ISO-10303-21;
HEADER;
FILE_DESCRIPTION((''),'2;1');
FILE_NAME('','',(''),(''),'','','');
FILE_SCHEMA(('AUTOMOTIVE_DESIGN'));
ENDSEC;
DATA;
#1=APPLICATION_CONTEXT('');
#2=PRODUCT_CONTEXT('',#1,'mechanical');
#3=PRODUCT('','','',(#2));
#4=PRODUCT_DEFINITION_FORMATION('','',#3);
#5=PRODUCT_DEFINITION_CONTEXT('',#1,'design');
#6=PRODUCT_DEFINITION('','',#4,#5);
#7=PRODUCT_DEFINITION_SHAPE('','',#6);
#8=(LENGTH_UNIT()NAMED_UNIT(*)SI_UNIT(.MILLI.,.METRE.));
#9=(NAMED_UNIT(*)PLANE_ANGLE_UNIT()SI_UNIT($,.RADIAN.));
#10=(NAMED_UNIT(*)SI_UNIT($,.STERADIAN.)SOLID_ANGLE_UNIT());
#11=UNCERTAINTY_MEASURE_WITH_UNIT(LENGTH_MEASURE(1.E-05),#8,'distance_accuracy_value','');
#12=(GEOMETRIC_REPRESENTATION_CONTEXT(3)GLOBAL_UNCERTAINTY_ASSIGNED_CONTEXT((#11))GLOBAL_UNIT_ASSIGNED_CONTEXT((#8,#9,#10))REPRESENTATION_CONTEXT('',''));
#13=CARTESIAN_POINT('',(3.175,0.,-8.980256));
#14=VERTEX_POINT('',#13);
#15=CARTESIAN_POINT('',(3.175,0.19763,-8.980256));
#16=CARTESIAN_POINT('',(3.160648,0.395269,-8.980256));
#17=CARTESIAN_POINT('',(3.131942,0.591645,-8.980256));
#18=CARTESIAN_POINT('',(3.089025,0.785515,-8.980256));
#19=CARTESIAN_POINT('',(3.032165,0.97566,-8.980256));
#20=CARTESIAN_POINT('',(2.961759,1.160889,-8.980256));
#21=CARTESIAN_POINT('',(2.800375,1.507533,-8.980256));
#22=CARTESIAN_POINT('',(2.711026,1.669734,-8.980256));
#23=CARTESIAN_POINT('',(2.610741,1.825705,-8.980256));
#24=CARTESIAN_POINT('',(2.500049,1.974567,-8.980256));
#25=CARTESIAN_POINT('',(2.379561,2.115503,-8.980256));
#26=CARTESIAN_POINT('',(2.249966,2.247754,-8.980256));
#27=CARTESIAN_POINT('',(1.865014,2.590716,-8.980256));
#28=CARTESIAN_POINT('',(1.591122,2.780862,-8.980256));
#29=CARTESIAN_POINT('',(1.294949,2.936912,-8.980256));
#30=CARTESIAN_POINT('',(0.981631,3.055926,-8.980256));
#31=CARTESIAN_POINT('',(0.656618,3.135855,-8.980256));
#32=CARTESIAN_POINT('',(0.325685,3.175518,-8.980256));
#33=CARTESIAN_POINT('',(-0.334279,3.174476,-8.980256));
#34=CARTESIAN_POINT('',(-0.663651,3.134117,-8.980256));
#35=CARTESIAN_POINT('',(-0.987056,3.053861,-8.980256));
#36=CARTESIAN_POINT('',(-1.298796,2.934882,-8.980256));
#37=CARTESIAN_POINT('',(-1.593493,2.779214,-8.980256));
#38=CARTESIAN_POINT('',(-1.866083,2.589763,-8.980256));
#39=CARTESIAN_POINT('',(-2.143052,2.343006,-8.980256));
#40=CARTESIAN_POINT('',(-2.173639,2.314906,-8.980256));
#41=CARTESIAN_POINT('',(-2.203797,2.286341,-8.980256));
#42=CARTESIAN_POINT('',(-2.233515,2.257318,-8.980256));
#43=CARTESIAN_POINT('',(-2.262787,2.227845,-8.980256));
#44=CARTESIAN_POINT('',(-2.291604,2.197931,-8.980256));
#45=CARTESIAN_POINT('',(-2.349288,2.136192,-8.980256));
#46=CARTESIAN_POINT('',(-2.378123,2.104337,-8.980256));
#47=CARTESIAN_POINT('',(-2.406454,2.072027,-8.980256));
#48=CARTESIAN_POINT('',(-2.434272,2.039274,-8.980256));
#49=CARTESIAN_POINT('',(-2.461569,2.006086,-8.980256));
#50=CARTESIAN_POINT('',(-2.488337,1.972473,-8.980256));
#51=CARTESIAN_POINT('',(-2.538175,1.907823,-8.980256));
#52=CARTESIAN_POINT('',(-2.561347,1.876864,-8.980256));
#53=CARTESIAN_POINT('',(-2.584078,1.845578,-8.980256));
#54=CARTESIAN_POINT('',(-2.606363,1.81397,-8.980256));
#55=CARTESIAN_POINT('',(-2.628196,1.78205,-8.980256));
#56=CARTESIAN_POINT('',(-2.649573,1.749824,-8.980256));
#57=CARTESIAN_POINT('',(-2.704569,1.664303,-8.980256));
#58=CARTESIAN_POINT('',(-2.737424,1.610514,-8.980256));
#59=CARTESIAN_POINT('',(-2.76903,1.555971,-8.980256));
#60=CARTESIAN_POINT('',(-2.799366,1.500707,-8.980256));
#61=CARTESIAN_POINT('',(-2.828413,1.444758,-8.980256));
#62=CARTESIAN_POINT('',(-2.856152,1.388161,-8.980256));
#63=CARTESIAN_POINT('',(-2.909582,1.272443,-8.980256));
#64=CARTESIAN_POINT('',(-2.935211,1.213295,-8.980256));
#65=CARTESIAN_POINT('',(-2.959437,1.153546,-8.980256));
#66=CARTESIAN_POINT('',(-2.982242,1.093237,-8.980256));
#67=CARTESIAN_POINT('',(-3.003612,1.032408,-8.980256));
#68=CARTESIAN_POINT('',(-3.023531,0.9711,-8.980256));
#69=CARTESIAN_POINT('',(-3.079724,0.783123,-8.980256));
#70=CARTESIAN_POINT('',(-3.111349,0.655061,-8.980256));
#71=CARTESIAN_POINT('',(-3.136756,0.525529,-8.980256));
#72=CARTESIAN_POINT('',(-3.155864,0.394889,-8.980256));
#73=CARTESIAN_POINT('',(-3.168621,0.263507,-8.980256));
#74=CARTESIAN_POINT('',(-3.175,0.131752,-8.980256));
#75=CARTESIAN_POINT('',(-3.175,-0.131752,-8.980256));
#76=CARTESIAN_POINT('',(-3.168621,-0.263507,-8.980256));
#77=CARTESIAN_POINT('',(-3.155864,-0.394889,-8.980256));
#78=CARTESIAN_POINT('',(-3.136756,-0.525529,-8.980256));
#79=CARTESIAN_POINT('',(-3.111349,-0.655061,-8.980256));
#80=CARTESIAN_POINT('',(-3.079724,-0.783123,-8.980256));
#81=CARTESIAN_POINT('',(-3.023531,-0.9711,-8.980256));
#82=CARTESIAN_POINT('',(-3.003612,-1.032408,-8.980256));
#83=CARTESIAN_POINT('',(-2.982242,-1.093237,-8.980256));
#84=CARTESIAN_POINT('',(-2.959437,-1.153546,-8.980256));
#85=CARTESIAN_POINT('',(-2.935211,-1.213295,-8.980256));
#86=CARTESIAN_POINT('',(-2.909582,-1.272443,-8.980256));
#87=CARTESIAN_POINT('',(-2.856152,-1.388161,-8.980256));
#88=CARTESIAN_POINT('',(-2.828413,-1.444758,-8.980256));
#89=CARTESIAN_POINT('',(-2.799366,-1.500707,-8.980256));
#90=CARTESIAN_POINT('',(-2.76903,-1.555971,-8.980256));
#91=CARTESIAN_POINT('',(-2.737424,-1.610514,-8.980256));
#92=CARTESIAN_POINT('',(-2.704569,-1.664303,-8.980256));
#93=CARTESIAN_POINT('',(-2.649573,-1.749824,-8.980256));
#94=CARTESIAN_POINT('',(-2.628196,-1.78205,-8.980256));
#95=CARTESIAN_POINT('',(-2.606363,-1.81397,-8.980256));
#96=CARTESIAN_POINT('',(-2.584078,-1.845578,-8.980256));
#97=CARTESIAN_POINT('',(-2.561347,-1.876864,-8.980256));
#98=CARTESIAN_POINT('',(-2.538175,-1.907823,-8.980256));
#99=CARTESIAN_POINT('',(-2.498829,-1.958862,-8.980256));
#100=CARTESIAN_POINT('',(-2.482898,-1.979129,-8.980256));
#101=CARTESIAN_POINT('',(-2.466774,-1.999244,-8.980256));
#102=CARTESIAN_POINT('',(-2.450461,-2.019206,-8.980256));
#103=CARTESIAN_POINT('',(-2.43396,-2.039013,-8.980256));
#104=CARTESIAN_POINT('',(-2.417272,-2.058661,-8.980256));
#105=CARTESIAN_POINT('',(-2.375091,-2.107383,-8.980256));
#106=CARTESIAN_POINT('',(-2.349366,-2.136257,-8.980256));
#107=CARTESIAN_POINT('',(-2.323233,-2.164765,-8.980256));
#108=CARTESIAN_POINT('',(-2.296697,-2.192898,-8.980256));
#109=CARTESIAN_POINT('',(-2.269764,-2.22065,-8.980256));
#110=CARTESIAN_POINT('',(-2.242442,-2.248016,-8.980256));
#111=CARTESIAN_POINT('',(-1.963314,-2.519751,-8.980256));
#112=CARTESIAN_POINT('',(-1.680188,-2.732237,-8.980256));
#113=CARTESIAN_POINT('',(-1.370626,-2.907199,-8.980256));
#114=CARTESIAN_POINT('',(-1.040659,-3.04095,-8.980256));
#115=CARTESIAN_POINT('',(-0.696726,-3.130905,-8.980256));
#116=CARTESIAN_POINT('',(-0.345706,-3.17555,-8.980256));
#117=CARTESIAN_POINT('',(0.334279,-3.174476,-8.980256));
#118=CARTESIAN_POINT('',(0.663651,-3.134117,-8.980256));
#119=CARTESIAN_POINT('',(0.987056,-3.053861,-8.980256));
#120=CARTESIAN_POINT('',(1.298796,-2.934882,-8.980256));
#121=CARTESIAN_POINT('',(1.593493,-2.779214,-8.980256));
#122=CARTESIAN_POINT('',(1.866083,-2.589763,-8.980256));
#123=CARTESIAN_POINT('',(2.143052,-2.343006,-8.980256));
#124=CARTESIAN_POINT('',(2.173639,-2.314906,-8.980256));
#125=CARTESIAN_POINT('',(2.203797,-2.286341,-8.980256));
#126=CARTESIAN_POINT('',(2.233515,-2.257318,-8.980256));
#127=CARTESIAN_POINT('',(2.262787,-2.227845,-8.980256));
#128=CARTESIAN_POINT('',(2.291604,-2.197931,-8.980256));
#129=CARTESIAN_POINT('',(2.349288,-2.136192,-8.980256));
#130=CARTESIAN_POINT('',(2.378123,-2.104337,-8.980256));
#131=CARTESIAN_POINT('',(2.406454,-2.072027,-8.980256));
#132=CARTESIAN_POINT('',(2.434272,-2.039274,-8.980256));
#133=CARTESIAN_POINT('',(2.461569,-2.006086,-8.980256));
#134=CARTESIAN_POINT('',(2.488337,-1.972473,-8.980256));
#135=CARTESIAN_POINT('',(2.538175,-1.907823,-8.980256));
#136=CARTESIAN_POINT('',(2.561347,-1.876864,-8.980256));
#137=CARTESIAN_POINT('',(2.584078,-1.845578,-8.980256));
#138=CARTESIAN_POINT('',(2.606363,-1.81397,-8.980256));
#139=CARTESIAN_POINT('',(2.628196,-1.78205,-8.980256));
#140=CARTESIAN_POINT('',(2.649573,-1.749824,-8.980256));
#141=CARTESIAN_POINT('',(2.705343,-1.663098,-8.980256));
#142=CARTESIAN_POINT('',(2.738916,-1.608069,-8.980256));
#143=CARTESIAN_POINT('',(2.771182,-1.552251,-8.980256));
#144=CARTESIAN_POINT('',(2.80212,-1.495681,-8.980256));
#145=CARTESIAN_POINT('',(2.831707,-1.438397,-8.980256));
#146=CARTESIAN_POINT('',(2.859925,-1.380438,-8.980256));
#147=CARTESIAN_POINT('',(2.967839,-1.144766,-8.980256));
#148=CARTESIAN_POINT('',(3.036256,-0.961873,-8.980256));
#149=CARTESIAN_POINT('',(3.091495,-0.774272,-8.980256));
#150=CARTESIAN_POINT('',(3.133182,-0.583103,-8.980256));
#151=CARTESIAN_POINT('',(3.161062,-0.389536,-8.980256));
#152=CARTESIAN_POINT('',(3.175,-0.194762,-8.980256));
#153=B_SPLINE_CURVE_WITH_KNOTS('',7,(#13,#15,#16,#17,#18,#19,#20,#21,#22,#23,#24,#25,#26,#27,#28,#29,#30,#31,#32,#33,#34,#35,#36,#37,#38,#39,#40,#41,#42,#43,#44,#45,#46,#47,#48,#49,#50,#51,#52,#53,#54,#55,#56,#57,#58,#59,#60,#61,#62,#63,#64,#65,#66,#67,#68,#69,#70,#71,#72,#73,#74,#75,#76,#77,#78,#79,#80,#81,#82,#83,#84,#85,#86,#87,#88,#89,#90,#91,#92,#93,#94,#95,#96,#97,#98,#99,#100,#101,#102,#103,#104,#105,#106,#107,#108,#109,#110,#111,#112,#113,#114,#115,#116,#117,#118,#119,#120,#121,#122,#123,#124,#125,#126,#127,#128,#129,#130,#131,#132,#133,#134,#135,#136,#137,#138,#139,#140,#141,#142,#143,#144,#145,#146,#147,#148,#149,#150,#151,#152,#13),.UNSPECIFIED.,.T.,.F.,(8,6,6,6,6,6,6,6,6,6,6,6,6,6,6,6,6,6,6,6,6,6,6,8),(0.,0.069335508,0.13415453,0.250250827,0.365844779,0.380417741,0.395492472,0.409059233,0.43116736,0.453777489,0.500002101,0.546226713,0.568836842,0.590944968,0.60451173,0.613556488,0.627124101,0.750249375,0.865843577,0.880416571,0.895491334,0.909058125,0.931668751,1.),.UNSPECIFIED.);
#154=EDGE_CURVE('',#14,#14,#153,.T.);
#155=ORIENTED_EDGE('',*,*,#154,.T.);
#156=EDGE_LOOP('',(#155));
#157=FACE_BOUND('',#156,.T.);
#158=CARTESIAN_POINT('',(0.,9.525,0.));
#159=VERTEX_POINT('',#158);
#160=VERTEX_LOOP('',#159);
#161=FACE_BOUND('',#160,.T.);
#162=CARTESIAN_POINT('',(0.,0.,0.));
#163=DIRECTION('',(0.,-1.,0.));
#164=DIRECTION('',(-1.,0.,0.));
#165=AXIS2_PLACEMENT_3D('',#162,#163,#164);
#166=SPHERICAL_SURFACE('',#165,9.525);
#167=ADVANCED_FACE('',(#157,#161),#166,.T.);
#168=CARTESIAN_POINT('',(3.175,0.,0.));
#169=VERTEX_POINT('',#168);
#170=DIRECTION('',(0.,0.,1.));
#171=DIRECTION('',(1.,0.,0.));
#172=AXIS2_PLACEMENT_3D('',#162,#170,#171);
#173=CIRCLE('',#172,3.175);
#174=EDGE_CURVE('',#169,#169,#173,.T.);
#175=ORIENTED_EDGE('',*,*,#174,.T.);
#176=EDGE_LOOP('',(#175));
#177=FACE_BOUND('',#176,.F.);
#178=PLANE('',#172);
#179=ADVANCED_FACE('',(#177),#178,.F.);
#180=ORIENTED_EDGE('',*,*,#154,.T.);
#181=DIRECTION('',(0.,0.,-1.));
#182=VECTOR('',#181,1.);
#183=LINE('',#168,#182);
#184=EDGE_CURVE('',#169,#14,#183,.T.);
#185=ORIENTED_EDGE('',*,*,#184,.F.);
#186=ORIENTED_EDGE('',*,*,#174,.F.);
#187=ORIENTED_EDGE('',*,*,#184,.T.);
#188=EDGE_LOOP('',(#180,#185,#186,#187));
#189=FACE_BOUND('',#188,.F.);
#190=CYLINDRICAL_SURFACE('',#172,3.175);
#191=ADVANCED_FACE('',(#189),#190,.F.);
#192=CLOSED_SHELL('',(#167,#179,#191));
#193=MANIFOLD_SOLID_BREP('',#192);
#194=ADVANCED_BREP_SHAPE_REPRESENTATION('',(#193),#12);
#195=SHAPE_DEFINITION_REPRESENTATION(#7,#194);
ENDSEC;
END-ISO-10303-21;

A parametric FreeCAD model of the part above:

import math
import FreeCAD as App
import Part
import Sketcher
Q = App.Units.Quantity

doc = App.newDocument("Part")
body = doc.addObject("PartDesign::Body", "Body")

# Sketch on XY plane
sketch1 = body.newObject("Sketcher::SketchObject", "Sketch")
sketch1.AttachmentSupport = (doc.getObject("XY_Plane"), [""])
sketch1.MapMode = "FlatFace"
sketch1.addGeometry([
    Part.LineSegment(App.Vector(0, -10, 0), App.Vector(0, 10, 0)),
    Part.ArcOfCircle(Part.Circle(App.Vector(0, 0, 0), App.Vector(0, 0, 1), 10), math.radians(90), math.radians(270)),
], False)
sketch1.addConstraint([
    Sketcher.Constraint("Coincident", 0, 1, 1, 2),
    Sketcher.Constraint("Coincident", 1, 1, 0, 2),
    Sketcher.Constraint("Vertical", 0),
    Sketcher.Constraint("Coincident", 1, 3, -1, 1),
    Sketcher.Constraint("PointOnObject", 0, 1, -2),
    Sketcher.Constraint("Radius", 1, Q("0.375 in")),
])
revolution = body.newObject("PartDesign::Revolution", "Revolution")
revolution.Profile = sketch1
revolution.ReferenceAxis = (sketch1, ["V_Axis"])
revolution.Angle = 360
body2 = doc.addObject("PartDesign::Body", "Body001")

# Sketch on XY plane
sketch2 = body2.newObject("Sketcher::SketchObject", "Sketch001")
sketch2.AttachmentSupport = (doc.getObject("XY_Plane001"), [""])
sketch2.MapMode = "FlatFace"
sketch2.addGeometry(Part.Circle(App.Vector(0, 0, 0), App.Vector(0, 0, 1), 3.2), False)
sketch2.addConstraint([
    Sketcher.Constraint("Coincident", 0, 3, -1, 1),
    Sketcher.Constraint("Diameter", 0, Q("0.25 in")),
])
pad1 = body2.newObject("PartDesign::Pad", "Pad")
pad1.Profile = sketch2
pad1.Length = Q("2 in")
pad1.Reversed = True
doc.recompute()

boolean = body.newObject("PartDesign::Boolean", "Boolean")
boolean.Type = "Cut"
boolean.addObjects([body2])

doc.recompute()
